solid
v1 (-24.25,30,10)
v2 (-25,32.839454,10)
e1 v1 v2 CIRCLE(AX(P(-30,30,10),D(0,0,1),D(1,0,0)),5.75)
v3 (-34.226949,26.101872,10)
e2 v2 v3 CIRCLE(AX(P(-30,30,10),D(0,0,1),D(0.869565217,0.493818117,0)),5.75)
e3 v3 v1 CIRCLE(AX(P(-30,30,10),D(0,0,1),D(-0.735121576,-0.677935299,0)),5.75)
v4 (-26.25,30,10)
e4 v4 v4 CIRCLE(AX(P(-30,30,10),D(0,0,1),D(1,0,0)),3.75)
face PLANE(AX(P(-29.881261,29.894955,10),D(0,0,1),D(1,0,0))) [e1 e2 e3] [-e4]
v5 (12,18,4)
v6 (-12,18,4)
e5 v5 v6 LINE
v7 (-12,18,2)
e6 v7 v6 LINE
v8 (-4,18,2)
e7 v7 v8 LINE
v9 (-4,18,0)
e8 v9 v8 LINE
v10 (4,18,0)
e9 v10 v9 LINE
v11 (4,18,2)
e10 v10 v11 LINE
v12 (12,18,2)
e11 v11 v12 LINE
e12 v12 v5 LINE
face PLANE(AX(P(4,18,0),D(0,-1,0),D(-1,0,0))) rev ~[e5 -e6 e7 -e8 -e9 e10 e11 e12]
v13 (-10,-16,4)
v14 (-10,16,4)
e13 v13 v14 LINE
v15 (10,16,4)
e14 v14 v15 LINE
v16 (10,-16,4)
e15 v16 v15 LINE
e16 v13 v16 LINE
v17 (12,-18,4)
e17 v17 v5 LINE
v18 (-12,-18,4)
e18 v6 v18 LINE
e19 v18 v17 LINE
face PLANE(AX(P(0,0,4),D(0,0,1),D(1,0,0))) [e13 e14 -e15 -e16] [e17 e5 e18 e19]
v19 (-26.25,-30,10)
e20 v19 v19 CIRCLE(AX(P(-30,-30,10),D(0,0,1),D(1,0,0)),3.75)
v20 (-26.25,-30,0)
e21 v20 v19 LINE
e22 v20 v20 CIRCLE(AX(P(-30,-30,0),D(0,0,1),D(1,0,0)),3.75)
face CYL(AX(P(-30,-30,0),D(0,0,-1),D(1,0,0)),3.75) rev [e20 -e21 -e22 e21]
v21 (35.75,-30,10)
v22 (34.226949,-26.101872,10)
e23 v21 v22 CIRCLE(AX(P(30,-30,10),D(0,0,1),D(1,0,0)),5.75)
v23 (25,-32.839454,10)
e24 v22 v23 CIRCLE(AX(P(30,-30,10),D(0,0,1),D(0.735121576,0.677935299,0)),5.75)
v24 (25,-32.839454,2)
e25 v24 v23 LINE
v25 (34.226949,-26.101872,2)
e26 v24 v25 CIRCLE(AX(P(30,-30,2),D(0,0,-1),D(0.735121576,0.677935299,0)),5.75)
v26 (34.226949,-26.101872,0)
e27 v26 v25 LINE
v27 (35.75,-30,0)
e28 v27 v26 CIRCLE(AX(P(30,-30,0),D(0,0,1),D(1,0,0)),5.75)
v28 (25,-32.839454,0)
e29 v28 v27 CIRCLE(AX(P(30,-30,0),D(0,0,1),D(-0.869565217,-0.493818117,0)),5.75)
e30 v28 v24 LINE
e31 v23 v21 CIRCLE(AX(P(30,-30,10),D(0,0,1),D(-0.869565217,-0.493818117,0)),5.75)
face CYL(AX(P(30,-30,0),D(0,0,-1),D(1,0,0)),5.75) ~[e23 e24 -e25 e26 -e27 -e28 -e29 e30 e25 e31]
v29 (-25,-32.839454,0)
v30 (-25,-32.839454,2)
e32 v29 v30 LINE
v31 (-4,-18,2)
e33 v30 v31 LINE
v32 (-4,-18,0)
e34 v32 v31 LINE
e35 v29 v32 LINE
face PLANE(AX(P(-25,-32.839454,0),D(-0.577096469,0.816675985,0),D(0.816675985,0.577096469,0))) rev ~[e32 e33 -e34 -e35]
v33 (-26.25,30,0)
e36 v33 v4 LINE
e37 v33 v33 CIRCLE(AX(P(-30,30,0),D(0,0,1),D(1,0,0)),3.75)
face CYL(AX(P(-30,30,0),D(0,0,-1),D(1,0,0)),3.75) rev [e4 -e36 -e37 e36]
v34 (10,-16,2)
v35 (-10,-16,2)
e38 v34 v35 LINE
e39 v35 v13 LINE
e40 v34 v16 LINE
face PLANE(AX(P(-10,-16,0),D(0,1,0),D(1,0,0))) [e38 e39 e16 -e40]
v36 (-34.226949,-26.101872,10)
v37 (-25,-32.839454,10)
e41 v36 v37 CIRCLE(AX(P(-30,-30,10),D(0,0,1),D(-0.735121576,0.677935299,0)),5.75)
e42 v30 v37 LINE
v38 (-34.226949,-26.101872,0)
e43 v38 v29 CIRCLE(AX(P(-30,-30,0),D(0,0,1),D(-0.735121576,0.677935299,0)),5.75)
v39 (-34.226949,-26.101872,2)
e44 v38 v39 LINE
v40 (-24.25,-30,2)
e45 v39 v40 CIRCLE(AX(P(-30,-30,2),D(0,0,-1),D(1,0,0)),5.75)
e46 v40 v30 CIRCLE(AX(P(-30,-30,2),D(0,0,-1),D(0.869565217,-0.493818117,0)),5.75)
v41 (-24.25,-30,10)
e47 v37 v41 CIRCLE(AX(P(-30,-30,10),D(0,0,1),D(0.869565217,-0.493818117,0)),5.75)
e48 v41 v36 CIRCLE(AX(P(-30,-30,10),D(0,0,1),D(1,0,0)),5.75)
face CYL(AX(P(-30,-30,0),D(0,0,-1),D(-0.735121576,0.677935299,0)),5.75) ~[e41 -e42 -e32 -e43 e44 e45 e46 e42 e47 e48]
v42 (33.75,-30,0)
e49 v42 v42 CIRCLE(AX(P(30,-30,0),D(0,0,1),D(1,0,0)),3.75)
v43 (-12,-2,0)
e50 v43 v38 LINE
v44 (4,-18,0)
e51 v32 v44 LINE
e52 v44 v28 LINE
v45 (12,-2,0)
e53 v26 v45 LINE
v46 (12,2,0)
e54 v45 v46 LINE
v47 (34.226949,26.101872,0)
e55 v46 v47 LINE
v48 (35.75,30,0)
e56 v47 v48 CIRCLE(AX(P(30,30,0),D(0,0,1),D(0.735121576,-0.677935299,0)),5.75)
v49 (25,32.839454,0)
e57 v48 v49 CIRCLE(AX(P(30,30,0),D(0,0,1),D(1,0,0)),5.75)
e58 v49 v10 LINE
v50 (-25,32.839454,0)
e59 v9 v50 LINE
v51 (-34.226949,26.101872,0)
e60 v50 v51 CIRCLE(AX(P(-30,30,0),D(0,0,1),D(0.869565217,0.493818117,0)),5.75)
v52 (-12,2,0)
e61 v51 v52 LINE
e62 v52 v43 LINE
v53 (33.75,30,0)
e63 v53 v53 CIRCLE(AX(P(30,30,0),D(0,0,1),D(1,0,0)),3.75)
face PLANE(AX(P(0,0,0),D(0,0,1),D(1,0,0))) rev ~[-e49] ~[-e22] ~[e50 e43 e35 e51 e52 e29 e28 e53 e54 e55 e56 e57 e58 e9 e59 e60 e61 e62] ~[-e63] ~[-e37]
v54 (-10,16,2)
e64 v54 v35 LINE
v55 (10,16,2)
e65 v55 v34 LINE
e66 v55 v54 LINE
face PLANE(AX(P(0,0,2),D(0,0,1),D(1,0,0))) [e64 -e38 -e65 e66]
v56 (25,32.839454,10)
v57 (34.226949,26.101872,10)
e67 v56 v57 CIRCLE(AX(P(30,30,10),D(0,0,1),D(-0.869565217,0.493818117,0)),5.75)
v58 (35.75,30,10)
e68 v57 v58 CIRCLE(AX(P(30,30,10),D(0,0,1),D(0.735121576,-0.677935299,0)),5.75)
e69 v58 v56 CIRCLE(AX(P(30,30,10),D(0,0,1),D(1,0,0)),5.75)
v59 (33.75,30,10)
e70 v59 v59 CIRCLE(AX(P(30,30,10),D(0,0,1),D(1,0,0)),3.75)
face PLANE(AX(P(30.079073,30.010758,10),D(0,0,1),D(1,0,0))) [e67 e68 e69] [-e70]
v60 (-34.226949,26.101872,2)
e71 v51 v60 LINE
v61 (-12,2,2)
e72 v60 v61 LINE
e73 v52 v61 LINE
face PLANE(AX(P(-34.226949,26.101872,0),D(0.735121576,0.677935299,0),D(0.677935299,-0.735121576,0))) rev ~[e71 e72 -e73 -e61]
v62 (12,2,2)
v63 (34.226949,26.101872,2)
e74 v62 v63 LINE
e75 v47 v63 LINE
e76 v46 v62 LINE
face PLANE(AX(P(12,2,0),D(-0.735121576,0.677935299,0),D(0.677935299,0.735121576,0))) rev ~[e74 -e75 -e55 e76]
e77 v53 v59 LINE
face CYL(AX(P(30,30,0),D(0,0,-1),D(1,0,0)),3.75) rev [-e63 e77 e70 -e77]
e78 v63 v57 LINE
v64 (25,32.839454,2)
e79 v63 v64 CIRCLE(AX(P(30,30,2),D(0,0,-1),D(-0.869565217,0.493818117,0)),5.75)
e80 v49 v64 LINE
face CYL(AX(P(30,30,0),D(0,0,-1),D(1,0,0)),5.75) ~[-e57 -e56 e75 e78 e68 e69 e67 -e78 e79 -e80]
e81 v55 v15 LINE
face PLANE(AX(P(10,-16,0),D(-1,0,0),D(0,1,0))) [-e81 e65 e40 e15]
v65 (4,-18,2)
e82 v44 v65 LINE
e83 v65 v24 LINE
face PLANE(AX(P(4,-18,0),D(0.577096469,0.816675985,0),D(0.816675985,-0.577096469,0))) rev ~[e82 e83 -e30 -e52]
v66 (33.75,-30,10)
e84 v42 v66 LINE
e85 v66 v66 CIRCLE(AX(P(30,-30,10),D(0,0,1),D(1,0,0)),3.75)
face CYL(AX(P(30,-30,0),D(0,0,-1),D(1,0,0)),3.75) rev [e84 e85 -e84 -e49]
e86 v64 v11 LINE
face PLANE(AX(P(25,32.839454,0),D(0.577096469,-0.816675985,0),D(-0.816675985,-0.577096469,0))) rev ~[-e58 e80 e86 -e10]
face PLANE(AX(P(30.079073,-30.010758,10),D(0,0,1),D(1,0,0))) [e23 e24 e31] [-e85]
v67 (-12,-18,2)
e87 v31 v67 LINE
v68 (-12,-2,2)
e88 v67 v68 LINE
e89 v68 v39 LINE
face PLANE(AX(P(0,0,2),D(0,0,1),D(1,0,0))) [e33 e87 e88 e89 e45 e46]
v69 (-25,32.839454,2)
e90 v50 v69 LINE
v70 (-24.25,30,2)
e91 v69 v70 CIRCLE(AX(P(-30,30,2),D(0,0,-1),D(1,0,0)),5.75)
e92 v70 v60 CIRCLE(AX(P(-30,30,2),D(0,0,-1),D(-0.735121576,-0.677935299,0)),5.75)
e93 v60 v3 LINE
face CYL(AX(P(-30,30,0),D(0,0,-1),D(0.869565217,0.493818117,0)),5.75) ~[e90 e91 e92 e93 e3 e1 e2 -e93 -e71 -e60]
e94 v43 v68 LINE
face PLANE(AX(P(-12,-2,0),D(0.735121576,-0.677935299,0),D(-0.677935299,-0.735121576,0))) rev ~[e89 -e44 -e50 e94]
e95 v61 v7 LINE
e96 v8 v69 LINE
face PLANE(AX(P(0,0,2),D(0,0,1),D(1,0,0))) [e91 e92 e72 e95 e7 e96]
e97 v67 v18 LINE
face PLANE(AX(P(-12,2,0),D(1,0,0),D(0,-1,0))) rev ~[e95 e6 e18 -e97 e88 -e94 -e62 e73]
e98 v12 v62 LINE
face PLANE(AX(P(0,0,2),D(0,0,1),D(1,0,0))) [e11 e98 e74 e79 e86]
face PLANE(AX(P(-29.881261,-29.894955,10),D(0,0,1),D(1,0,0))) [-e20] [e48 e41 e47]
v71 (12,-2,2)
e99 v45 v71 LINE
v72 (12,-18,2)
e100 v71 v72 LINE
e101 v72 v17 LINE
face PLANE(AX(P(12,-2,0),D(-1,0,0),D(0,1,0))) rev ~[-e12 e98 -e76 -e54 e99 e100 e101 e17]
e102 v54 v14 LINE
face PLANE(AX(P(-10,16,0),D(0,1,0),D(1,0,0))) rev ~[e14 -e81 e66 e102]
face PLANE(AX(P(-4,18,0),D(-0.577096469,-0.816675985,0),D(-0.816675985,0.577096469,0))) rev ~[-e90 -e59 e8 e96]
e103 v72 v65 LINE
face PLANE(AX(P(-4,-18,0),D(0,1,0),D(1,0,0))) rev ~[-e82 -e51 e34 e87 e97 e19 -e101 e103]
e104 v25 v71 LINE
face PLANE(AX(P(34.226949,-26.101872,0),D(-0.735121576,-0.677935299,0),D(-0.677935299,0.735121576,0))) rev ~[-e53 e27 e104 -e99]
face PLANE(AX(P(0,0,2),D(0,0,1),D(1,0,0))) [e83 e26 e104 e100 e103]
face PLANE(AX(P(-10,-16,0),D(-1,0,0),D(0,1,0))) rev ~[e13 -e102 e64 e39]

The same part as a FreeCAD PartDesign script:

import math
import FreeCAD as App
import Part
import Sketcher

V = App.Vector


def add_polygon(sketch, points):
    """Adds a closed chain of lines whose ends are joined by coincident constraints."""
    first, n = sketch.GeometryCount, len(points)
    for a, b in zip(points, points[1:] + points[:1]):
        sketch.addGeometry(Part.LineSegment(App.Vector(*a, 0), App.Vector(*b, 0)), False)
    for i in range(n):
        sketch.addConstraint(Sketcher.Constraint("Coincident", first + i, 2, first + (i + 1) % n, 1))

doc = App.newDocument("Part")
body = doc.addObject("PartDesign::Body", "Body")

# Sketch on XY plane
sketch1 = body.newObject("Sketcher::SketchObject", "Sketch")
sketch1.AttachmentSupport = (doc.getObject("XY_Plane"), [""])
sketch1.MapMode = "FlatFace"
sketch1.addGeometry([
    Part.LineSegment(V(4, 18, 0), V(-4, 18, 0)),  # 0
    Part.LineSegment(V(-4, 18, 0), V(-25, 32.8, 0)),  # 1
    Part.ArcOfCircle(Part.Circle(V(-30, 30, 0), V(0, 0, 1), 5.8), math.radians(30), math.radians(223)),  # 2
    Part.LineSegment(V(-34.2, 26.1, 0), V(-12, 2, 0)),  # 3
    Part.LineSegment(V(-12, 2, 0), V(-12, -2, 0)),  # 4
    Part.LineSegment(V(-12, -2, 0), V(-34.2, -26.1, 0)),  # 5
    Part.ArcOfCircle(Part.Circle(V(-30, -30, 0), V(0, 0, 1), 5.8), math.radians(137), math.radians(330)),  # 6
    Part.LineSegment(V(-25, -32.8, 0), V(-4, -18, 0)),  # 7
    Part.LineSegment(V(-4, -18, 0), V(4, -18, 0)),  # 8
    Part.LineSegment(V(4, -18, 0), V(25, -32.8, 0)),  # 9
    Part.ArcOfCircle(Part.Circle(V(30, -30, 0), V(0, 0, 1), 5.8), math.radians(-150), math.radians(0)),  # 10
    Part.ArcOfCircle(Part.Circle(V(30, -30, 0), V(0, 0, 1), 5.8), math.radians(0), math.radians(43)),  # 11
    Part.LineSegment(V(34.2, -26.1, 0), V(12, -2, 0)),  # 12
    Part.LineSegment(V(12, -2, 0), V(12, 2, 0)),  # 13
    Part.LineSegment(V(12, 2, 0), V(34.2, 26.1, 0)),  # 14
    Part.ArcOfCircle(Part.Circle(V(30, 30, 0), V(0, 0, 1), 5.8), math.radians(-43), math.radians(0)),  # 15
    Part.ArcOfCircle(Part.Circle(V(30, 30, 0), V(0, 0, 1), 5.8), math.radians(0), math.radians(150)),  # 16
    Part.LineSegment(V(25, 32.8, 0), V(4, 18, 0)),  # 17
    Part.Circle(V(-30, -30, 0), V(0, 0, 1), 3.8),  # 18
    Part.Circle(V(30, -30, 0), V(0, 0, 1), 3.8),  # 19
    Part.Circle(V(-30, 30, 0), V(0, 0, 1), 3.8),  # 20
    Part.Circle(V(30, 30, 0), V(0, 0, 1), 3.8),  # 21
], False)
sketch1.addConstraint([
    Sketcher.Constraint("Coincident", 0, 2, 1, 1),
    Sketcher.Constraint("Coincident", 1, 2, 2, 1),
    Sketcher.Constraint("Tangent", 2, 2, 3, 1),
    Sketcher.Constraint("Coincident", 3, 2, 4, 1),
    Sketcher.Constraint("Coincident", 4, 2, 5, 1),
    Sketcher.Constraint("Tangent", 5, 2, 6, 1),
    Sketcher.Constraint("Coincident", 6, 2, 7, 1),
    Sketcher.Constraint("Coincident", 7, 2, 8, 1),
    Sketcher.Constraint("Coincident", 8, 2, 9, 1),
    Sketcher.Constraint("Coincident", 9, 2, 10, 1),
    Sketcher.Constraint("Tangent", 10, 2, 11, 1),
    Sketcher.Constraint("Tangent", 11, 2, 12, 1),
    Sketcher.Constraint("Coincident", 12, 2, 13, 1),
    Sketcher.Constraint("Coincident", 13, 2, 14, 1),
    Sketcher.Constraint("Tangent", 14, 2, 15, 1),
    Sketcher.Constraint("Tangent", 15, 2, 16, 1),
    Sketcher.Constraint("Coincident", 16, 2, 17, 1),
    Sketcher.Constraint("Coincident", 17, 2, 0, 1),
    Sketcher.Constraint("Horizontal", 0),
    Sketcher.Constraint("Vertical", 4),
    Sketcher.Constraint("Horizontal", 8),
    Sketcher.Constraint("Vertical", 13),
    Sketcher.Constraint("Coincident", 18, 3, 6, 3),
    Sketcher.Constraint("Coincident", 19, 3, 10, 3),
    Sketcher.Constraint("Coincident", 20, 3, 2, 3),
    Sketcher.Constraint("Coincident", 21, 3, 15, 3),
    Sketcher.Constraint("Equal", 2, 6),
    Sketcher.Constraint("Equal", 6, 10),
    Sketcher.Constraint("Equal", 10, 11),
    Sketcher.Constraint("Equal", 11, 15),
    Sketcher.Constraint("Equal", 15, 16),
    Sketcher.Constraint("Equal", 18, 19),
    Sketcher.Constraint("Equal", 19, 20),
    Sketcher.Constraint("Equal", 20, 21),
    Sketcher.Constraint("Symmetric", 2, 3, 10, 3, -1, 1),
    Sketcher.Constraint("Symmetric", 6, 3, 15, 3, -1, 1),
    Sketcher.Constraint("Symmetric", 0, 2, 8, 2, -1, 1),
    Sketcher.Constraint("Symmetric", 3, 2, 12, 2, -1, 1),
    Sketcher.Constraint("Symmetric", 6, 3, 10, 3, -2),
    Sketcher.Constraint("Parallel", 1, 9),
    Sketcher.Constraint("Parallel", 5, 14),
    Sketcher.Constraint("Parallel", 7, 17),
    Sketcher.Constraint("Horizontal", 6, 2, 9, 2),
    Sketcher.Constraint("Horizontal", 19, 3, 10, 2),
    Sketcher.Constraint("Horizontal", 5, 2, 11, 2),
    Sketcher.Constraint("Horizontal", 21, 3, 15, 2),
    Sketcher.Constraint("Horizontal", 1, 2, 16, 2),
    Sketcher.Constraint("Vertical", 0, 2, 7, 2),
    Sketcher.Constraint("Diameter", 18, 7.5),
    Sketcher.Constraint("DistanceX", 0, 2, 0, 1, 8.0),
    Sketcher.Constraint("DistanceY", 4, 2, 4, 1, 4.0),
    Sketcher.Constraint("Radius", 2, 5.75),
    Sketcher.Constraint("DistanceX", 2, 3, -1, 1, 30.0),
    Sketcher.Constraint("DistanceY", -1, 1, 2, 3, 30.0),
    Sketcher.Constraint("DistanceY", -1, 1, 0, 2, 18.0),
    Sketcher.Constraint("DistanceX", 1, 2, -1, 1, 25.0),
    Sketcher.Constraint("DistanceX", 3, 2, -1, 1, 12.0),
])
pad1 = body.newObject("PartDesign::Pad", "Pad")
pad1.Profile = sketch1
pad1.Length = 2

# Sketch on XY plane
sketch2 = body.newObject("Sketcher::SketchObject", "Sketch001")
sketch2.AttachmentSupport = (doc.getObject("XY_Plane"), [""])
sketch2.MapMode = "FlatFace"
sketch2.addGeometry([
    Part.ArcOfCircle(Part.Circle(V(-30, -30, 0), V(0, 0, 1), 5.8), math.radians(0), math.radians(137)),  # 0
    Part.ArcOfCircle(Part.Circle(V(-30, -30, 0), V(0, 0, 1), 5.8), math.radians(137), math.radians(330)),  # 1
    Part.ArcOfCircle(Part.Circle(V(-30, -30, 0), V(0, 0, 1), 5.7), math.radians(-30), math.radians(0)),  # 2
    Part.Circle(V(-30, -30, 0), V(0, 0, 1), 3.8),  # 3
    Part.ArcOfCircle(Part.Circle(V(30, -30, 0), V(0, 0, 1), 5.8), math.radians(0), math.radians(43)),  # 4
    Part.ArcOfCircle(Part.Circle(V(30, -30, 0), V(0, 0, 1), 5.8), math.radians(43), math.radians(210)),  # 5
    Part.ArcOfCircle(Part.Circle(V(30, -30, 0), V(0, 0, 1), 5.8), math.radians(-150), math.radians(0)),  # 6
    Part.Circle(V(30, -30, 0), V(0, 0, 1), 3.8),  # 7
    Part.ArcOfCircle(Part.Circle(V(30, 30, 0), V(0, 0, 1), 5.8), math.radians(-43), math.radians(0)),  # 8
    Part.ArcOfCircle(Part.Circle(V(30, 30, 0), V(0, 0, 1), 5.8), math.radians(0), math.radians(150)),  # 9
    Part.ArcOfCircle(Part.Circle(V(30, 30, 0), V(0, 0, 1), 5.8), math.radians(150), math.radians(317)),  # 10
    Part.Circle(V(30, 30, 0), V(0, 0, 1), 3.8),  # 11
    Part.ArcOfCircle(Part.Circle(V(-30, 30, 0), V(0, 0, 1), 5.7), math.radians(0), math.radians(30)),  # 12
    Part.ArcOfCircle(Part.Circle(V(-30, 30, 0), V(0, 0, 1), 5.8), math.radians(30), math.radians(223)),  # 13
    Part.ArcOfCircle(Part.Circle(V(-30, 30, 0), V(0, 0, 1), 5.8), math.radians(-137), math.radians(0)),  # 14
    Part.Circle(V(-30, 30, 0), V(0, 0, 1), 3.8),  # 15
], False)
sketch2.addConstraint([
    Sketcher.Constraint("Tangent", 0, 2, 1, 1),
    Sketcher.Constraint("Tangent", 1, 2, 2, 1),
    Sketcher.Constraint("Tangent", 2, 2, 0, 1),
    Sketcher.Constraint("Tangent", 4, 2, 5, 1),
    Sketcher.Constraint("Tangent", 5, 2, 6, 1),
    Sketcher.Constraint("Tangent", 6, 2, 4, 1),
    Sketcher.Constraint("Tangent", 8, 2, 9, 1),
    Sketcher.Constraint("Tangent", 9, 2, 10, 1),
    Sketcher.Constraint("Tangent", 10, 2, 8, 1),
    Sketcher.Constraint("Tangent", 12, 2, 13, 1),
    Sketcher.Constraint("Tangent", 13, 2, 14, 1),
    Sketcher.Constraint("Tangent", 14, 2, 12, 1),
    Sketcher.Constraint("Coincident", 3, 3, 0, 3),
    Sketcher.Constraint("Coincident", 7, 3, 4, 3),
    Sketcher.Constraint("Coincident", 11, 3, 8, 3),
    Sketcher.Constraint("Coincident", 15, 3, 12, 3),
    Sketcher.Constraint("Equal", 2, 4),
    Sketcher.Constraint("Equal", 3, 7),
    Sketcher.Constraint("Equal", 6, 8),
    Sketcher.Constraint("Equal", 7, 11),
    Sketcher.Constraint("Equal", 10, 12),
    Sketcher.Constraint("Equal", 11, 15),
    Sketcher.Constraint("Symmetric", 0, 3, 8, 3, -1, 1),
    Sketcher.Constraint("Symmetric", 4, 3, 12, 3, -1, 1),
    Sketcher.Constraint("Symmetric", 0, 3, 4, 3, -2),
    Sketcher.Constraint("Horizontal", 7, 3, 2, 2),
    Sketcher.Constraint("Horizontal", 0, 2, 4, 2),
    Sketcher.Constraint("Horizontal", 1, 2, 5, 2),
    Sketcher.Constraint("Horizontal", 2, 2, 6, 2),
    Sketcher.Constraint("Horizontal", 15, 3, 8, 2),
    Sketcher.Constraint("Horizontal", 9, 2, 12, 2),
    Sketcher.Constraint("Horizontal", 10, 2, 13, 2),
    Sketcher.Constraint("Horizontal", 8, 2, 14, 2),
    Sketcher.Constraint("Vertical", 5, 2, 9, 2),
    Sketcher.Constraint("Vertical", 4, 2, 10, 2),
    Sketcher.Constraint("Diameter", 3, 7.5),
    Sketcher.Constraint("Radius", 0, 5.75),
    Sketcher.Constraint("DistanceX", 0, 3, -1, 1, 30.0),
    Sketcher.Constraint("DistanceY", 0, 3, -1, 1, 30.0),
    Sketcher.Constraint("DistanceX", 1, 2, -1, 1, 25.0),
    Sketcher.Constraint("DistanceX", 0, 2, -1, 1, 34.226949),
])
pad2 = body.newObject("PartDesign::Pad", "Pad001")
pad2.Profile = sketch2
pad2.Length = 10

# Sketch on XY plane
sketch3 = body.newObject("Sketcher::SketchObject", "Sketch002")
sketch3.AttachmentSupport = (doc.getObject("XY_Plane"), [""])
sketch3.MapMode = "FlatFace"
add_polygon(sketch3, [(12, 18), (-12, 18), (-12, -18), (12, -18)])  # lines 0-3
add_polygon(sketch3, [(10, -16), (-10, -16), (-10, 16), (10, 16)])  # lines 4-7
sketch3.addConstraint([
    Sketcher.Constraint("Horizontal", 0),
    Sketcher.Constraint("Vertical", 1),
    Sketcher.Constraint("Horizontal", 2),
    Sketcher.Constraint("Vertical", 3),
    Sketcher.Constraint("Horizontal", 4),
    Sketcher.Constraint("Vertical", 5),
    Sketcher.Constraint("Horizontal", 6),
    Sketcher.Constraint("Vertical", 7),
    Sketcher.Constraint("Symmetric", 0, 2, 2, 2, -1, 1),
    Sketcher.Constraint("Symmetric", 4, 2, 6, 2, -1, 1),
    Sketcher.Constraint("DistanceX", 0, 2, 0, 1, 24.0),
    Sketcher.Constraint("DistanceX", 4, 2, 4, 1, 20.0),
    Sketcher.Constraint("DistanceY", 1, 2, 1, 1, 36.0),
    Sketcher.Constraint("DistanceY", 5, 1, 5, 2, 32.0),
])
pad3 = body.newObject("PartDesign::Pad", "Pad002")
pad3.Profile = sketch3
pad3.Length = 4

doc.recompute()
